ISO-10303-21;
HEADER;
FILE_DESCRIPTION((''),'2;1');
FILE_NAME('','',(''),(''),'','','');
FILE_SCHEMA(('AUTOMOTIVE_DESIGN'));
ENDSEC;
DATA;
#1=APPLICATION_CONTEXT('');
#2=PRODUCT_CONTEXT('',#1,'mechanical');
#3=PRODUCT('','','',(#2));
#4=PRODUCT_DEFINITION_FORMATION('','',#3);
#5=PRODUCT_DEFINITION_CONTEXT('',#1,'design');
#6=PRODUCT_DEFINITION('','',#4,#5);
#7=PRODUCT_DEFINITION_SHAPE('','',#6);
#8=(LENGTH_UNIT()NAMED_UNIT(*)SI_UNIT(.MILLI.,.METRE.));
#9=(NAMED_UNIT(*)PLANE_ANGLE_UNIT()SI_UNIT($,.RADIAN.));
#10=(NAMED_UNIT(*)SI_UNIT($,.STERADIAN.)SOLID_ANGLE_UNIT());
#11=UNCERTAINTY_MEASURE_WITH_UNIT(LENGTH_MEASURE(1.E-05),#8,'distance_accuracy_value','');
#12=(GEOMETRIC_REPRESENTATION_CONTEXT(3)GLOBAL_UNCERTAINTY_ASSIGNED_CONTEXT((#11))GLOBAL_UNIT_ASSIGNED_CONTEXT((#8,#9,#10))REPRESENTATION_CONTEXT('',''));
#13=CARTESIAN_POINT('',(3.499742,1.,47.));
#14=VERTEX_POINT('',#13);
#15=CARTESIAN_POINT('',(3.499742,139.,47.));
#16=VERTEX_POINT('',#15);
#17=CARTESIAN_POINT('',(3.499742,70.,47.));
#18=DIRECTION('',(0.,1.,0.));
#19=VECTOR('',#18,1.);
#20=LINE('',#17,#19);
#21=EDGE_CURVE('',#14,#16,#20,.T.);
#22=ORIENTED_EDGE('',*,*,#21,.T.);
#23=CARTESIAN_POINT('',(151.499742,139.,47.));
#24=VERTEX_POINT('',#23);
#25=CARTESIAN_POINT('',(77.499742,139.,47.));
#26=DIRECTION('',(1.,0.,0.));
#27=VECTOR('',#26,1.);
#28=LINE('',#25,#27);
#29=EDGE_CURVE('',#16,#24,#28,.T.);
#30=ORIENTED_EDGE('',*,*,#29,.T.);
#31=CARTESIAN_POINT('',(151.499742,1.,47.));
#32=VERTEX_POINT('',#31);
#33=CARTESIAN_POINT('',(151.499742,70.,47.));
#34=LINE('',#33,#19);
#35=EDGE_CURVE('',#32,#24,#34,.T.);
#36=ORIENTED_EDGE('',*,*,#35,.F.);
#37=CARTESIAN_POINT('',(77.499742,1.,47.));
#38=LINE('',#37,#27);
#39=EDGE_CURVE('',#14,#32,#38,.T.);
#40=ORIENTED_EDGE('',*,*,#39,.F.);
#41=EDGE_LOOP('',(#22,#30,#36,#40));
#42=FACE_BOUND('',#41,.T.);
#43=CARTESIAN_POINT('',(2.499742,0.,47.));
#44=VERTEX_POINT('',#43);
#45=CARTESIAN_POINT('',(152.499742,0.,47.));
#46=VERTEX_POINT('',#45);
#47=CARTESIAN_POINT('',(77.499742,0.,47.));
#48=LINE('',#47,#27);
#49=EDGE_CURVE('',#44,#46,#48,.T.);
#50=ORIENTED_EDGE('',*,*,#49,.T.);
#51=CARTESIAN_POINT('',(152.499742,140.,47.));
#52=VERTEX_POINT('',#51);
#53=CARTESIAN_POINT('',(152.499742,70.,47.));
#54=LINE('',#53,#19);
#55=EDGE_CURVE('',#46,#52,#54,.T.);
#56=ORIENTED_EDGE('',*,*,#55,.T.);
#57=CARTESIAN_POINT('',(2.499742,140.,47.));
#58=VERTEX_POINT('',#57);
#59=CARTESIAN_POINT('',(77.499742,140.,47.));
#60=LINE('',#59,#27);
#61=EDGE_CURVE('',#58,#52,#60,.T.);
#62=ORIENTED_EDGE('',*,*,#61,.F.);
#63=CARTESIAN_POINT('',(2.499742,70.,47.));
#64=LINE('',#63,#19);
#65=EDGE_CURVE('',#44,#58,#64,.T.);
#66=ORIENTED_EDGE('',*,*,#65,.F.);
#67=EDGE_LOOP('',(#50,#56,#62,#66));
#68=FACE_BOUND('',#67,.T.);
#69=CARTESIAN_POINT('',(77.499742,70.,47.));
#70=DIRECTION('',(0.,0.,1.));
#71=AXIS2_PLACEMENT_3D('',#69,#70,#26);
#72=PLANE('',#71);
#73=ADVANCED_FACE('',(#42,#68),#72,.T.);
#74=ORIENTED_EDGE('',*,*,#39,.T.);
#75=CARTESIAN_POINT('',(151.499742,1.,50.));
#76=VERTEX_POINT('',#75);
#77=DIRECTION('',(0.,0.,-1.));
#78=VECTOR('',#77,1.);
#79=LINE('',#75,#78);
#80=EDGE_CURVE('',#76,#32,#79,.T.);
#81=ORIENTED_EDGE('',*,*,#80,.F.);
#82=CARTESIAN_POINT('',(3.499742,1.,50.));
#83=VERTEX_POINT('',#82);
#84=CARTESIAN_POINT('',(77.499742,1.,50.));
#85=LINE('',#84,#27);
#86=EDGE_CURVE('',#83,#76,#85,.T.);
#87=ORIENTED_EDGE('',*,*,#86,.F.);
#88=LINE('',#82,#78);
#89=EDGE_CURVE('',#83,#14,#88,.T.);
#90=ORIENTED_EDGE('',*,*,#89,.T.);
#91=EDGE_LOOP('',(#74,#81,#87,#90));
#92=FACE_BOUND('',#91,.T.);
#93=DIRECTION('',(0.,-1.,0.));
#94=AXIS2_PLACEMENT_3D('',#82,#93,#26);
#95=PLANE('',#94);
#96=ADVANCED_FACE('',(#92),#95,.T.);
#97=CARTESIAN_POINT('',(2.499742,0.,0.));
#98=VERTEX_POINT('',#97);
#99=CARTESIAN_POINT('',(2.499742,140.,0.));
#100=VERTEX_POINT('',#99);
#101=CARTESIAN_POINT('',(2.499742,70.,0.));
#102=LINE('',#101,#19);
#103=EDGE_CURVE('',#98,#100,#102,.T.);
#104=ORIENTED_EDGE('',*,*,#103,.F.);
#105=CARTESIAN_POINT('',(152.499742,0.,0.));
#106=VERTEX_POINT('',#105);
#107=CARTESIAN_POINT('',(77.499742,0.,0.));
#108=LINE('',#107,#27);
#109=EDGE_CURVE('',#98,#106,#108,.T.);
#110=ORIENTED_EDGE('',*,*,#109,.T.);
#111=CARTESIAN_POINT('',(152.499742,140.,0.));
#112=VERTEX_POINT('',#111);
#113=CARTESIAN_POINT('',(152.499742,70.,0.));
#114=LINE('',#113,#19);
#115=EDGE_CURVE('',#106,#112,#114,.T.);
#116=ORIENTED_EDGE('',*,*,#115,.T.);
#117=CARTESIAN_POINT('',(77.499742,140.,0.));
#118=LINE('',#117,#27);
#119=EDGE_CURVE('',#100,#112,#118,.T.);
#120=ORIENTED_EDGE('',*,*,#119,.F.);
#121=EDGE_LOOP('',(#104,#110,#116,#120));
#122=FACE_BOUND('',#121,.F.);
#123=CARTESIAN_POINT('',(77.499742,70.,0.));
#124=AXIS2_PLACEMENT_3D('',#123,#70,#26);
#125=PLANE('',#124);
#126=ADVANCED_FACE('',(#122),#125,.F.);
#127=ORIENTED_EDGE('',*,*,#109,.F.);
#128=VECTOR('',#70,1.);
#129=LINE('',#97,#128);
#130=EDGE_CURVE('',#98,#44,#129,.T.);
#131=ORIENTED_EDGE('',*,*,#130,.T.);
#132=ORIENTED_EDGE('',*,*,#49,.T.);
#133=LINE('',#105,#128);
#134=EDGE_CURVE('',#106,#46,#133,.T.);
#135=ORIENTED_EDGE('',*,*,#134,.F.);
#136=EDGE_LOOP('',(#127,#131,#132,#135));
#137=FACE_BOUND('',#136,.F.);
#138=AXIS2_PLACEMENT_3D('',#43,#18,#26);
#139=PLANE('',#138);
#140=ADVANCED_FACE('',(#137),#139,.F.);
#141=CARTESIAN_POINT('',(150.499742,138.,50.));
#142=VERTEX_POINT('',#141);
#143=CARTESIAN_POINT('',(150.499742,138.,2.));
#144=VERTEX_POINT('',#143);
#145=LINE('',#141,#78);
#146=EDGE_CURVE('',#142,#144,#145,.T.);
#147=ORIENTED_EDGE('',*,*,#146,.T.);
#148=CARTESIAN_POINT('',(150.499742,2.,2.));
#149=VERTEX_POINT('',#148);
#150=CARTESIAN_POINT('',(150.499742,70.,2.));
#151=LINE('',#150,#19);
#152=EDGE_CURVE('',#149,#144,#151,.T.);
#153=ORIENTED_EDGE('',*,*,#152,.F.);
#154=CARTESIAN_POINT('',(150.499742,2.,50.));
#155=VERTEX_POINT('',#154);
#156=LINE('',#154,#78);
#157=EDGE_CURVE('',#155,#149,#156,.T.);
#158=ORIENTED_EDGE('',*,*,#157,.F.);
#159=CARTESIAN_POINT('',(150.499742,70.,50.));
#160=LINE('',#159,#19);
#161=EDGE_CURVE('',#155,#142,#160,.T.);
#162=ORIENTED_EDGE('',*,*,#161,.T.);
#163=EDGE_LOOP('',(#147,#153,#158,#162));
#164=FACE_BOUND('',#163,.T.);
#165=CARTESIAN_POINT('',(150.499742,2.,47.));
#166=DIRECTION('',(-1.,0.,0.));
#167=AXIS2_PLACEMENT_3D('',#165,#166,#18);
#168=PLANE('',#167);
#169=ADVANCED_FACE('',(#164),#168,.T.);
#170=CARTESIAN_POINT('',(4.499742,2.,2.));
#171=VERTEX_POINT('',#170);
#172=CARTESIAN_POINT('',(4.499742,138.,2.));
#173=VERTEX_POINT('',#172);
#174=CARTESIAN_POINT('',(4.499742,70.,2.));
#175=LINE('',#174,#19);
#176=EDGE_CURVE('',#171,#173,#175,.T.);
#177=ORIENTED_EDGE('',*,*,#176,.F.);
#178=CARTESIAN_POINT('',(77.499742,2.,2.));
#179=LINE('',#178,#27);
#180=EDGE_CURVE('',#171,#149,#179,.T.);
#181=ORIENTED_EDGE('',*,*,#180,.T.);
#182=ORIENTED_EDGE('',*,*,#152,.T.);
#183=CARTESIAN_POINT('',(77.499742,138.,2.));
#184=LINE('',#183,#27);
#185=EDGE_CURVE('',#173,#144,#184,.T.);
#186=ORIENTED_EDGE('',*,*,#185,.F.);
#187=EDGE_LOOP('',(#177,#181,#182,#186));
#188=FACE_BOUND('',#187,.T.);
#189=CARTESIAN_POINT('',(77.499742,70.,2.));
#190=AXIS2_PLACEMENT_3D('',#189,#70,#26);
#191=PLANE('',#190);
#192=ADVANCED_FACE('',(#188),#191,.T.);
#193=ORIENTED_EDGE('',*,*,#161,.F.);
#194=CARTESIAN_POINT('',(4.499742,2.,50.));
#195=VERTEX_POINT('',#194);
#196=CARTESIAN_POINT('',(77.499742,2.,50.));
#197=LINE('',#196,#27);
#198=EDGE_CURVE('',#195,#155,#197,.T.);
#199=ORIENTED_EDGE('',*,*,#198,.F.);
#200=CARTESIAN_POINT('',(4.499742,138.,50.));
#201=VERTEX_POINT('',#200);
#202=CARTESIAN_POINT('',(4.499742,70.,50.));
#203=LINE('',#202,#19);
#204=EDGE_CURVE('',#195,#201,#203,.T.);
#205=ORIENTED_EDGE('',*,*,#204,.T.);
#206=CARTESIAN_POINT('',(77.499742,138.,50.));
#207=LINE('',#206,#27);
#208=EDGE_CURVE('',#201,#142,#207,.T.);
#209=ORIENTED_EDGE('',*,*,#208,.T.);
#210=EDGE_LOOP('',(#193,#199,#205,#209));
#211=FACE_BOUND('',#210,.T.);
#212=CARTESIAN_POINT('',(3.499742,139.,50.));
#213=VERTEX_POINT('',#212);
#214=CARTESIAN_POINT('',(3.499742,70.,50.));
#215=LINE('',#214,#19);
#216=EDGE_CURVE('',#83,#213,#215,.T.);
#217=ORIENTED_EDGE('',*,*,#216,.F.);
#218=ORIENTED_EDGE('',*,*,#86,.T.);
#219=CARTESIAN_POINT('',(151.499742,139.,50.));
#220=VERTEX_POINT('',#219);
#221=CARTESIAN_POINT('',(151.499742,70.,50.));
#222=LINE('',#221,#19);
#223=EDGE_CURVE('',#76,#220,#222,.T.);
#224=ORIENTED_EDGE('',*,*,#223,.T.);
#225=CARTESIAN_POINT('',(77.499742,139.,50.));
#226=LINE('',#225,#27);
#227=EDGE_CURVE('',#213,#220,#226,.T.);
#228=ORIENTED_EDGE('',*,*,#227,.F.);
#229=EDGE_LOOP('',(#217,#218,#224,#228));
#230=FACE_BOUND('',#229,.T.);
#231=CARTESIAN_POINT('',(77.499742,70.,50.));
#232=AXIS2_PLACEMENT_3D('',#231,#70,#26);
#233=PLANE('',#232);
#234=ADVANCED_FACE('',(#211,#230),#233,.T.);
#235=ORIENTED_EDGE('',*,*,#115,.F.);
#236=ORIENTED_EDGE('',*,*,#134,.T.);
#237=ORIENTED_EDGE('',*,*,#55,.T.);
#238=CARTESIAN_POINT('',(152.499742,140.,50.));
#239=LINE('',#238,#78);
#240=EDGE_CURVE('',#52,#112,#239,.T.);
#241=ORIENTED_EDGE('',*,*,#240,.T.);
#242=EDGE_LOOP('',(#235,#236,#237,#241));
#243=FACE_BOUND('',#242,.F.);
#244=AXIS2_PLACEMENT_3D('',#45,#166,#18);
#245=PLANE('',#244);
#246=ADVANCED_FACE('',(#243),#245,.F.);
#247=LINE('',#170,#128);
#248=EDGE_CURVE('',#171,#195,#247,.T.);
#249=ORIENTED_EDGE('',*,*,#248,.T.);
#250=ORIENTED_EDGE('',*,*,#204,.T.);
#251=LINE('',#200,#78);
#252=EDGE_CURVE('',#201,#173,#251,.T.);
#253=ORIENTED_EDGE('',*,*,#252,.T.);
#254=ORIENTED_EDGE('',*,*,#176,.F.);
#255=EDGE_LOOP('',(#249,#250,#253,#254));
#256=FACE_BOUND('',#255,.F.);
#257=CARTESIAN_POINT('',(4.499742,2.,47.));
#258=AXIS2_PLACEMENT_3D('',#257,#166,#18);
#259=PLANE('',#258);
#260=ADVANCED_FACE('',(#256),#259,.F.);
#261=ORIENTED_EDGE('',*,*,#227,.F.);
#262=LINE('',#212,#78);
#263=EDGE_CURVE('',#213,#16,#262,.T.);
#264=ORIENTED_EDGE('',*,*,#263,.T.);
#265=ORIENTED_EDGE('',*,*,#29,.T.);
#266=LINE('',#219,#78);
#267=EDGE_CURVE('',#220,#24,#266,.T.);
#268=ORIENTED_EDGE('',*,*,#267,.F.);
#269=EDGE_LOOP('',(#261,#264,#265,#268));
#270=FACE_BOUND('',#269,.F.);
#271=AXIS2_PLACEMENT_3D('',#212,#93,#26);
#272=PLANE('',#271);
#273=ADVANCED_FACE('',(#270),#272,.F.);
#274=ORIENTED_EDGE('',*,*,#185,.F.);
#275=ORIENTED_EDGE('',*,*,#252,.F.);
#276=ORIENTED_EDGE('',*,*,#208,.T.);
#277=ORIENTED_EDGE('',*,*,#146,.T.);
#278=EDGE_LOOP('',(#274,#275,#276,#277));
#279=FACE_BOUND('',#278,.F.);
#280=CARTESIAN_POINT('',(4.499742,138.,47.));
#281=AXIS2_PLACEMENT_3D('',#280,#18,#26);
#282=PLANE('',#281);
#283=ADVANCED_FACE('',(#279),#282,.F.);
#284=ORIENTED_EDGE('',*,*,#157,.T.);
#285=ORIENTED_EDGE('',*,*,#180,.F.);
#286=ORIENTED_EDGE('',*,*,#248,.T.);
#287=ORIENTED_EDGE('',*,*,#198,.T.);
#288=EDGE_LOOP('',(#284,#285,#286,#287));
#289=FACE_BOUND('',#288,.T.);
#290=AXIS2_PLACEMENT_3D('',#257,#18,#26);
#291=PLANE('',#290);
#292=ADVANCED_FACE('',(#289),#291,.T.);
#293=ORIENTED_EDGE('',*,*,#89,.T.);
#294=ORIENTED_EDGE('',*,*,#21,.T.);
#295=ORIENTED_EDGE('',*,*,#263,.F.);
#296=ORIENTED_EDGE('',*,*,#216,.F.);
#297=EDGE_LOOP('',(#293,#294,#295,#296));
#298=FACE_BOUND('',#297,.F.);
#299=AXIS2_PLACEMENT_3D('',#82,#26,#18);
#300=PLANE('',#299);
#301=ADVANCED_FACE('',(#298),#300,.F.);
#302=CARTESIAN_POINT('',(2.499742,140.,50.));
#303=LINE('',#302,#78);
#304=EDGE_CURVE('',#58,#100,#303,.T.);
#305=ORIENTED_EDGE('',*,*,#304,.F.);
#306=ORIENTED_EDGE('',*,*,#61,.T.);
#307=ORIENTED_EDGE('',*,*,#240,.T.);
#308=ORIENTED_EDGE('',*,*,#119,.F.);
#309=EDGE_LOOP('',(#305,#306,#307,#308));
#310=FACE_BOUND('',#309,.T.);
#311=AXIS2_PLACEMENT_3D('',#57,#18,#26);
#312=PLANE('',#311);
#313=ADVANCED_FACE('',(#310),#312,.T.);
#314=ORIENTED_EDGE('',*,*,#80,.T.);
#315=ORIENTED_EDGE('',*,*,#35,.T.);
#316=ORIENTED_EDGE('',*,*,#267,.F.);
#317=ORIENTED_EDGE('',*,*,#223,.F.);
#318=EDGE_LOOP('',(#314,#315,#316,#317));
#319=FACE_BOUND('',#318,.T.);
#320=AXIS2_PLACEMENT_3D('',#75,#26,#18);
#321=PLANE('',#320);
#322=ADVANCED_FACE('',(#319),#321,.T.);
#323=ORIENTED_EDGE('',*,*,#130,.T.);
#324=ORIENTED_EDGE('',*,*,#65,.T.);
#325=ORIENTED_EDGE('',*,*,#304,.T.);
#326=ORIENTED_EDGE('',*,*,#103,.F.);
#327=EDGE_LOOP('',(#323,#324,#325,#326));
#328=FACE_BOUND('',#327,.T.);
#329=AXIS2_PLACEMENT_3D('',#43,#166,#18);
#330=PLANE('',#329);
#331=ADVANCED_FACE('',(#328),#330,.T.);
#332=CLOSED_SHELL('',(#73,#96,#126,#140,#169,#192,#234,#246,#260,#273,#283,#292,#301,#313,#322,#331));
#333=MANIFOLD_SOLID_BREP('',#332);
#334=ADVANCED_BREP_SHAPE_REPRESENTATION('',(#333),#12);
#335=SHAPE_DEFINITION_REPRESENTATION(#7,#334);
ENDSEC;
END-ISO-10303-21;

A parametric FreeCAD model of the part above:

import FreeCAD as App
import Part
import Sketcher
from FreeCAD import Vector
Q = App.Units.Quantity


def add_polygon(sketch, points):
    """Adds a closed chain of lines whose ends are joined by coincident constraints."""
    first, n = sketch.GeometryCount, len(points)
    for a, b in zip(points, points[1:] + points[:1]):
        sketch.addGeometry(Part.LineSegment(App.Vector(*a, 0), App.Vector(*b, 0)), False)
    for i in range(n):
        sketch.addConstraint(Sketcher.Constraint("Coincident", first + i, 2, first + (i + 1) % n, 1))

doc = App.newDocument("Part")
body = doc.addObject("PartDesign::Body", "Body")

# Sketch on XY plane
sketch1 = body.newObject("Sketcher::SketchObject", "Sketch")
sketch1.AttachmentSupport = (doc.getObject("XY_Plane"), [""])
sketch1.MapMode = "FlatFace"
add_polygon(sketch1, [(2, 140), (2, 0), (152, 0), (152, 140)])  # lines 0-3
sketch1.addConstraint([
    Sketcher.Constraint("Vertical", 0),
    Sketcher.Constraint("Horizontal", 1),
    Sketcher.Constraint("Vertical", 2),
    Sketcher.Constraint("Horizontal", 3),
    Sketcher.Constraint("PointOnObject", 0, 2, -1),
    Sketcher.Constraint("DistanceX", 1, 1, 1, 2, Q("150 mm")),
    Sketcher.Constraint("DistanceY", 0, 2, 0, 1, Q("140 mm")),
    Sketcher.Constraint("DistanceX", -1, 1, 0, 2, Q("2.499742 mm")),
])
pad1 = body.newObject("PartDesign::Pad", "Pad")
pad1.Profile = sketch1
pad1.Length = 47

# Sketch on XY plane
sketch2 = body.newObject("Sketcher::SketchObject", "Sketch001")
sketch2.AttachmentSupport = (doc.getObject("XY_Plane"), [""])
sketch2.MapMode = "FlatFace"
sketch2.AttachmentOffset = App.Placement(Vector(0, 0, 47), App.Rotation())
add_polygon(sketch2, [(4, 138), (4, 2), (150, 2), (150, 138)])  # lines 0-3
sketch2.addConstraint([
    Sketcher.Constraint("Vertical", 0),
    Sketcher.Constraint("Horizontal", 1),
    Sketcher.Constraint("Vertical", 2),
    Sketcher.Constraint("Horizontal", 3),
    Sketcher.Constraint("DistanceX", 1, 1, 1, 2, Q("146 mm")),
    Sketcher.Constraint("DistanceY", 0, 2, 0, 1, Q("136 mm")),
    Sketcher.Constraint("DistanceY", -1, 1, 0, 2, Q("2 mm")),
    Sketcher.Constraint("DistanceX", -1, 1, 1, 2, Q("150.499742 mm")),
])
pocket1 = body.newObject("PartDesign::Pocket", "Pocket")
pocket1.Profile = sketch2
pocket1.Length = 45

# Sketch on XY plane
sketch3 = body.newObject("Sketcher::SketchObject", "Sketch002")
sketch3.AttachmentSupport = (doc.getObject("XY_Plane"), [""])
sketch3.MapMode = "FlatFace"
sketch3.AttachmentOffset = App.Placement(Vector(0, 0, 47), App.Rotation())
add_polygon(sketch3, [(2, 140), (2, 0), (152, 0), (152, 140)])  # lines 0-3
add_polygon(sketch3, [(150, 2), (4, 2), (4, 138), (150, 138)])  # lines 4-7
sketch3.addConstraint([
    Sketcher.Constraint("Vertical", 0),
    Sketcher.Constraint("Horizontal", 1),
    Sketcher.Constraint("Vertical", 2),
    Sketcher.Constraint("Horizontal", 3),
    Sketcher.Constraint("Horizontal", 4),
    Sketcher.Constraint("Vertical", 5),
    Sketcher.Constraint("Horizontal", 6),
    Sketcher.Constraint("Vertical", 7),
    Sketcher.Constraint("PointOnObject", 0, 2, -1),
    Sketcher.Constraint("DistanceX", 1, 1, 1, 2, Q("150 mm")),
    Sketcher.Constraint("DistanceX", 4, 2, 4, 1, Q("146 mm")),
    Sketcher.Constraint("DistanceY", 0, 2, 0, 1, Q("140 mm")),
    Sketcher.Constraint("DistanceY", 5, 1, 5, 2, Q("136 mm")),
    Sketcher.Constraint("DistanceY", -1, 1, 4, 2, Q("2 mm")),
    Sketcher.Constraint("DistanceX", 0, 2, 4, 2, Q("2 mm")),
    Sketcher.Constraint("DistanceX", -1, 1, 0, 2, Q("2.499742 mm")),
])
pad2 = body.newObject("PartDesign::Pad", "Pad001")
pad2.Profile = sketch3
pad2.Length = 3

# Sketch on XY plane
sketch4 = body.newObject("Sketcher::SketchObject", "Sketch003")
sketch4.AttachmentSupport = (doc.getObject("XY_Plane"), [""])
sketch4.MapMode = "FlatFace"
sketch4.AttachmentOffset = App.Placement(Vector(0, 0, 50), App.Rotation())
add_polygon(sketch4, [(2, 140), (2, 0), (152, 0), (152, 140)])  # lines 0-3
add_polygon(sketch4, [(151, 1), (3, 1), (3, 139), (151, 139)])  # lines 4-7
sketch4.addConstraint([
    Sketcher.Constraint("Vertical", 0),
    Sketcher.Constraint("Horizontal", 1),
    Sketcher.Constraint("Vertical", 2),
    Sketcher.Constraint("Horizontal", 3),
    Sketcher.Constraint("Horizontal", 4),
    Sketcher.Constraint("Vertical", 5),
    Sketcher.Constraint("Horizontal", 6),
    Sketcher.Constraint("Vertical", 7),
    Sketcher.Constraint("PointOnObject", 0, 2, -1),
    Sketcher.Constraint("DistanceX", 1, 1, 1, 2, Q("150 mm")),
    Sketcher.Constraint("DistanceX", 4, 2, 4, 1, Q("148 mm")),
    Sketcher.Constraint("DistanceY", 0, 2, 0, 1, Q("140 mm")),
    Sketcher.Constraint("DistanceY", 5, 1, 5, 2, Q("138 mm")),
    Sketcher.Constraint("DistanceY", -1, 1, 4, 2, Q("1 mm")),
    Sketcher.Constraint("DistanceX", 0, 2, 4, 2, Q("1 mm")),
    Sketcher.Constraint("DistanceX", -1, 1, 0, 2, Q("2.499742 mm")),
])
pocket2 = body.newObject("PartDesign::Pocket", "Pocket001")
pocket2.Profile = sketch4
pocket2.Length = 3

doc.recompute()
